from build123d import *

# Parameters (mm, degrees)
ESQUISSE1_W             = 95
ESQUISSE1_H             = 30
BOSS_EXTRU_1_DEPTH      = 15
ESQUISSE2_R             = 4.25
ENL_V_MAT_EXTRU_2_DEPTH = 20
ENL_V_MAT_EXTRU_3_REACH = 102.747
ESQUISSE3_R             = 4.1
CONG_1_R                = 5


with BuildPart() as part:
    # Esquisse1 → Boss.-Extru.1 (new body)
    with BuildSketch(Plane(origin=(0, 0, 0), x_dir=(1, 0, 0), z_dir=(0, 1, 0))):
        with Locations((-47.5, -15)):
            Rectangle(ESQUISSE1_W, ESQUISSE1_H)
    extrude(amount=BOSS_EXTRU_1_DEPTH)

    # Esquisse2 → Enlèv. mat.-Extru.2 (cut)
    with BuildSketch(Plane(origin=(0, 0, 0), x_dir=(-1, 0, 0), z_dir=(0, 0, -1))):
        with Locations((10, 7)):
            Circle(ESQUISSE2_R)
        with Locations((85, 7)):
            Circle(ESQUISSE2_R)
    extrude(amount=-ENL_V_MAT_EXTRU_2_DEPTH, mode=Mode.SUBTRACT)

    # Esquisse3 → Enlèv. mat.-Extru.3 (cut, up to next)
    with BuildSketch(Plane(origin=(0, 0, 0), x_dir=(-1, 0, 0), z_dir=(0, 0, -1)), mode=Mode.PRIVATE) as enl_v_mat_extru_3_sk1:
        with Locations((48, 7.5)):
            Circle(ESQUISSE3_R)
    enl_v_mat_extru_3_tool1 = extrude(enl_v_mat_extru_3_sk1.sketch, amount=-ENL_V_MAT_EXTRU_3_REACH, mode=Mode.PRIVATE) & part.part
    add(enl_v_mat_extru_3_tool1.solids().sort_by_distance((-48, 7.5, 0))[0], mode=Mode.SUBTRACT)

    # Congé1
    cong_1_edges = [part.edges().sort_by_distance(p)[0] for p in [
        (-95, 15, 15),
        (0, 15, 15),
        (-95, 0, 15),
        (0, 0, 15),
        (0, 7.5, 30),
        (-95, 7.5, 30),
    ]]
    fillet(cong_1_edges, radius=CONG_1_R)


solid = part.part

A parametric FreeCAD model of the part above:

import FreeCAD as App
import Part
import Sketcher

V = App.Vector


def edges_at(feature, points):
    """Names of the edges that pass closest to the given points."""
    edges = feature.Shape.Edges
    near = lambda p: min(range(len(edges)), key=lambda i: edges[i].distToShape(Part.Vertex(*p))[0])
    return sorted({f"Edge{near(p) + 1}" for p in points})


def add_polygon(sketch, points):
    """Adds a closed chain of lines whose ends are joined by coincident constraints."""
    first, n = sketch.GeometryCount, len(points)
    for a, b in zip(points, points[1:] + points[:1]):
        sketch.addGeometry(Part.LineSegment(App.Vector(*a, 0), App.Vector(*b, 0)), False)
    for i in range(n):
        sketch.addConstraint(Sketcher.Constraint("Coincident", first + i, 2, first + (i + 1) % n, 1))

doc = App.newDocument("Part")
body = doc.addObject("PartDesign::Body", "Body")

sketch1 = body.newObject("Sketcher::SketchObject", "Sketch")
sketch1.AttachmentSupport = (doc.getObject("XZ_Plane"), [""])
sketch1.MapMode = "FlatFace"
add_polygon(sketch1, [(-95, 0), (-95, 30), (0, 30), (0, 0)])
sketch1.addConstraint(Sketcher.Constraint("Vertical", 0))
sketch1.addConstraint(Sketcher.Constraint("Horizontal", 1))
sketch1.addConstraint(Sketcher.Constraint("Vertical", 2))
sketch1.addConstraint(Sketcher.Constraint("Horizontal", 3))
sketch1.addConstraint(Sketcher.Constraint("Coincident", 2, 2, -1, 1))
sketch1.addConstraint(Sketcher.Constraint("DistanceX", 1, 1, 1, 2, 95.0))
sketch1.addConstraint(Sketcher.Constraint("DistanceY", 0, 1, 0, 2, 30.0))
pad1 = body.newObject("PartDesign::Pad", "Pad")
pad1.Profile = sketch1
pad1.Length = 15
pad1.Reversed = True

sketch2 = body.newObject("Sketcher::SketchObject", "Sketch001")
sketch2.AttachmentSupport = (doc.getObject("XY_Plane"), [""])
sketch2.MapMode = "FlatFace"
sketch2.addGeometry(Part.Circle(V(-10, 7, 0), V(0, 0, 1), 4.2), False)
sketch2.addGeometry(Part.Circle(V(-85, 7, 0), V(0, 0, 1), 4.2), False)
sketch2.addConstraint(Sketcher.Constraint("Equal", 0, 1))
sketch2.addConstraint(Sketcher.Constraint("Horizontal", 0, 3, 1, 3))
sketch2.addConstraint(Sketcher.Constraint("Diameter", 0, 8.5))
sketch2.addConstraint(Sketcher.Constraint("DistanceX", 0, 3, -1, 1, 10.0))
sketch2.addConstraint(Sketcher.Constraint("DistanceY", -1, 1, 0, 3, 7.0))
sketch2.addConstraint(Sketcher.Constraint("DistanceX", 1, 3, -1, 1, 85.0))
pocket1 = body.newObject("PartDesign::Pocket", "Pocket")
pocket1.Profile = sketch2
pocket1.Length = 20
pocket1.Reversed = True

sketch3 = body.newObject("Sketcher::SketchObject", "Sketch002")
sketch3.AttachmentSupport = (doc.getObject("XY_Plane"), [""])
sketch3.MapMode = "FlatFace"
sketch3.addGeometry(Part.Circle(V(-48, 7.5, 0), V(0, 0, 1), 4.1), False)
sketch3.addConstraint(Sketcher.Constraint("Diameter", 0, 8.2))
sketch3.addConstraint(Sketcher.Constraint("DistanceX", 0, 3, -1, 1, 48.0))
sketch3.addConstraint(Sketcher.Constraint("DistanceY", -1, 1, 0, 3, 7.5))
pocket2 = body.newObject("PartDesign::Pocket", "Pocket001")
pocket2.Profile = sketch3
pocket2.Type = "UpToFirst"
pocket2.Reversed = True
doc.recompute()

fillet = body.newObject("PartDesign::Fillet", "Fillet")
fillet.Base = (pocket2, edges_at(pocket2, [
    (-95, 15, 15),
    (0, 15, 15),
    (-95, 0, 15),
    (0, 0, 15),
    (0, 7.5, 30),
    (-95, 7.5, 30),
]))
fillet.Radius = 5

doc.recompute()
